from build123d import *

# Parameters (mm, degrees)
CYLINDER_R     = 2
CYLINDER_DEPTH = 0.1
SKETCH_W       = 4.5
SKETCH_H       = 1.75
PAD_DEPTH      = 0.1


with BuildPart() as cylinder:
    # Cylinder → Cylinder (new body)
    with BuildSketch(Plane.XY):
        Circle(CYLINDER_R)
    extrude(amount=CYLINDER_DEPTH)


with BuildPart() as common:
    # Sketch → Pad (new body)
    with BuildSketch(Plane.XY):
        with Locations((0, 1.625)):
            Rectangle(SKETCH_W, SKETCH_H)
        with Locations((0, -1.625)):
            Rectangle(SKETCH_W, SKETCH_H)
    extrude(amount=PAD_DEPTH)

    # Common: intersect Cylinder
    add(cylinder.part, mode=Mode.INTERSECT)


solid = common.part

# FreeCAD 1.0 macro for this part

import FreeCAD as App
import Part
import Sketcher

V = App.Vector


def add_polygon(sketch, points):
    """Adds a closed chain of lines whose ends are joined by coincident constraints."""
    first, n = sketch.GeometryCount, len(points)
    for a, b in zip(points, points[1:] + points[:1]):
        sketch.addGeometry(Part.LineSegment(App.Vector(*a, 0), App.Vector(*b, 0)), False)
    for i in range(n):
        sketch.addConstraint(Sketcher.Constraint("Coincident", first + i, 2, first + (i + 1) % n, 1))

doc = App.newDocument("Part")
body = doc.addObject("PartDesign::Body", "Body")

sketch1 = doc.addObject("Sketcher::SketchObject", "Sketch")
body.addObject(sketch1)
sketch1.AttachmentSupport = (doc.XY_Plane, [""])
sketch1.MapMode = "FlatFace"
sketch1.addGeometry(Part.Circle(V(0, 0, 0), V(0, 0, 1), 2), False)
sketch1.addConstraint([
    Sketcher.Constraint("Coincident", 0, 3, -1, 1),
    Sketcher.Constraint("Diameter", 0, 4.0),
])
pad1 = doc.addObject("PartDesign::Pad", "Pad")
body.addObject(pad1)
pad1.Profile = sketch1
pad1.Length = 0.1
body2 = doc.addObject("PartDesign::Body", "Body001")
body2.AllowCompound = True

sketch2 = doc.addObject("Sketcher::SketchObject", "Sketch001")
body2.addObject(sketch2)
sketch2.AttachmentSupport = (doc.getObject("XY_Plane001"), [""])
sketch2.MapMode = "FlatFace"
add_polygon(sketch2, [(-2.2, 2.5), (-2.2, 0.8), (2.2, 0.8), (2.2, 2.5)])
add_polygon(sketch2, [(-2.2, -0.8), (-2.2, -2.5), (2.2, -2.5), (2.2, -0.8)])
sketch2.addConstraint([
    Sketcher.Constraint("Vertical", 0),
    Sketcher.Constraint("Horizontal", 1),
    Sketcher.Constraint("Vertical", 2),
    Sketcher.Constraint("Horizontal", 3),
    Sketcher.Constraint("Vertical", 4),
    Sketcher.Constraint("Horizontal", 5),
    Sketcher.Constraint("Vertical", 6),
    Sketcher.Constraint("Horizontal", 7),
    Sketcher.Constraint("Symmetric", 2, 2, 4, 2, -1, 1),
    Sketcher.Constraint("Symmetric", 0, 2, 6, 2, -1, 1),
    Sketcher.Constraint("Vertical", 3, 2, 4, 2),
    Sketcher.Constraint("DistanceX", 1, 1, 1, 2, 4.5),
    Sketcher.Constraint("DistanceY", 4, 2, 3, 2, 5.0),
    Sketcher.Constraint("DistanceY", 0, 2, 0, 1, 1.75),
])
pad2 = doc.addObject("PartDesign::Pad", "Pad001")
body2.addObject(pad2)
pad2.Profile = sketch2
pad2.Length = 0.1
doc.recompute()

boolean = doc.addObject("PartDesign::Boolean", "Boolean")
body2.addObject(boolean)
boolean.Type = "Common"
boolean.addObjects([body])

doc.recompute()
